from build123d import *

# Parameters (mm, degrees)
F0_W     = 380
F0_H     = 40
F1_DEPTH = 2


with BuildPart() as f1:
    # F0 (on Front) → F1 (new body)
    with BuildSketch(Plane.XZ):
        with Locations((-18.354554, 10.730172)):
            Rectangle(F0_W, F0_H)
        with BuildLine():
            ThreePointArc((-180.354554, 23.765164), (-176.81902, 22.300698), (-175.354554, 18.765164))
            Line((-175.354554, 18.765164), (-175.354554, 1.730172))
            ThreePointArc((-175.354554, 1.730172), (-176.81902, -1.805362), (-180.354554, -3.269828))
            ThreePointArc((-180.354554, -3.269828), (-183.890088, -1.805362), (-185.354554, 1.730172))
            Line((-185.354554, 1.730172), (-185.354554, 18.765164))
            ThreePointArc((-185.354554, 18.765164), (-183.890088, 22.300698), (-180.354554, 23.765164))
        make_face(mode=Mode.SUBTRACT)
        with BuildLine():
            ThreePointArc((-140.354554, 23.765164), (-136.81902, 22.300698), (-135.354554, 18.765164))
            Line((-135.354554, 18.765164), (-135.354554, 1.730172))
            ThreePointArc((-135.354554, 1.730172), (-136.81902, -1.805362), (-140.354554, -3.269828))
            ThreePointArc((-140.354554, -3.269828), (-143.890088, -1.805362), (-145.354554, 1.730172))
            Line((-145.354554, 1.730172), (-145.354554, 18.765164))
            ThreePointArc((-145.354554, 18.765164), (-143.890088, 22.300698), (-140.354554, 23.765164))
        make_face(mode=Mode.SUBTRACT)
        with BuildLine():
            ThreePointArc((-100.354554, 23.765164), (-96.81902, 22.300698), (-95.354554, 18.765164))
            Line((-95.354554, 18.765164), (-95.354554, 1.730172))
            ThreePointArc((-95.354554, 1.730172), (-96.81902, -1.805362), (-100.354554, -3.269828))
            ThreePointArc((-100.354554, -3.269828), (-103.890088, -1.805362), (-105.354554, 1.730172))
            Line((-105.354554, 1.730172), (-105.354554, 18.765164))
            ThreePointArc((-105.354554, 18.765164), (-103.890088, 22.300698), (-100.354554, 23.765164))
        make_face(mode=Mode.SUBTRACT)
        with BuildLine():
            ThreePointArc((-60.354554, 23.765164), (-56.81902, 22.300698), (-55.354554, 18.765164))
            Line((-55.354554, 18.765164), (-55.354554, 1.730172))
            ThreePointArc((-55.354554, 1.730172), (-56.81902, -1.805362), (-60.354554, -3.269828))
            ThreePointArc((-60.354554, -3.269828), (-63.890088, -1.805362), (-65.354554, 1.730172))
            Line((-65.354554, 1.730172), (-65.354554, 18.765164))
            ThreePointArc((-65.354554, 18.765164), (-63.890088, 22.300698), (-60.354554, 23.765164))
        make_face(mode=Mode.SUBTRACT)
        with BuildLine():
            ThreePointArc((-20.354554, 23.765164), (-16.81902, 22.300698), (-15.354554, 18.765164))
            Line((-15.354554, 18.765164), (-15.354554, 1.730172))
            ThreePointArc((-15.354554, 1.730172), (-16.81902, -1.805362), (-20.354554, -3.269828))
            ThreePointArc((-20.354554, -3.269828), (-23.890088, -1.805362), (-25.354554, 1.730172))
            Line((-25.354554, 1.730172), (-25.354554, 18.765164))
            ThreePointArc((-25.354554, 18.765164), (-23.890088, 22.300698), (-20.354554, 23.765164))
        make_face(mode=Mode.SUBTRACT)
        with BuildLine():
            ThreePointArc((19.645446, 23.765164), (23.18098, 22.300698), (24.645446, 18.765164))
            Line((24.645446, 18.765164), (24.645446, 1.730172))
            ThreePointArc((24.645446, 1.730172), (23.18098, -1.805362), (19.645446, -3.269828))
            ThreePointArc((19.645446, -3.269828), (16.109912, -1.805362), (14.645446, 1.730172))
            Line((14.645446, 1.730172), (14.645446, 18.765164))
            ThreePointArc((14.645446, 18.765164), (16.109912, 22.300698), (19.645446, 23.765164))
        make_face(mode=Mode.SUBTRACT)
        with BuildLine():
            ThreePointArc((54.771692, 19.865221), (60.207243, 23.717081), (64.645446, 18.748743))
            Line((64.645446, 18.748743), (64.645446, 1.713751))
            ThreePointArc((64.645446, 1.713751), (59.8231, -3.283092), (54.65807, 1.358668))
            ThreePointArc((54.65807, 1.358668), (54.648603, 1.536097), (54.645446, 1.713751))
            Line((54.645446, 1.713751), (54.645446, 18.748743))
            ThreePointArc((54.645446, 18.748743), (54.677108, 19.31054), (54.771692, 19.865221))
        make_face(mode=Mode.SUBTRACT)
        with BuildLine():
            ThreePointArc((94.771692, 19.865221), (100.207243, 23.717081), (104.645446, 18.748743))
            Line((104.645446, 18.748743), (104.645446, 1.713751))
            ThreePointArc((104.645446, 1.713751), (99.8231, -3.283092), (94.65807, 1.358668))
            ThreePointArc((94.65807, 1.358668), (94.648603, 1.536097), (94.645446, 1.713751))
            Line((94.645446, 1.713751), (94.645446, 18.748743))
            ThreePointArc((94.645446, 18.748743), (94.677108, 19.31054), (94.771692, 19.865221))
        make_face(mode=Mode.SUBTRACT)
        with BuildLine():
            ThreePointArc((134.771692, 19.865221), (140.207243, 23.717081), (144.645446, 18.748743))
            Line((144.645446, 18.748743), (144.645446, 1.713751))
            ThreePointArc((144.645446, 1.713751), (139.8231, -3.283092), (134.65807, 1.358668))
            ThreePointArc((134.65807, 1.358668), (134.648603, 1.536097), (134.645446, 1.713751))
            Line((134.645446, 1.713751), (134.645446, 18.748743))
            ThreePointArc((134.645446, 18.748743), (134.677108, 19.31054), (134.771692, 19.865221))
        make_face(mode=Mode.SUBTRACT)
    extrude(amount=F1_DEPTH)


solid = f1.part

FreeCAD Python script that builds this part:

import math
import FreeCAD as App
import Part
import Sketcher

V = App.Vector


def add_polygon(sketch, points):
    """Adds a closed chain of lines whose ends are joined by coincident constraints."""
    first, n = sketch.GeometryCount, len(points)
    for a, b in zip(points, points[1:] + points[:1]):
        sketch.addGeometry(Part.LineSegment(App.Vector(*a, 0), App.Vector(*b, 0)), False)
    for i in range(n):
        sketch.addConstraint(Sketcher.Constraint("Coincident", first + i, 2, first + (i + 1) % n, 1))

doc = App.newDocument("Part")
body = doc.addObject("PartDesign::Body", "Body")

# Sketch on XZ plane
sketch1 = body.newObject("Sketcher::SketchObject", "Sketch")
sketch1.AttachmentSupport = (doc.getObject("XZ_Plane"), [""])
sketch1.MapMode = "FlatFace"
add_polygon(sketch1, [(-208.354554, 30.730172), (-208.354554, -9.269828), (171.645446, -9.269828), (171.645446, 30.730172)])  # lines 0-3
sketch1.addGeometry(Part.ArcOfCircle(Part.Circle(V(59.645481, 18.74874, 0), V(0, 0, 1), 5.000035), math.radians(167.097378), math.radians(179.99996)), False)  # 4
sketch1.addGeometry(Part.ArcOfCircle(Part.Circle(V(59.645446, 18.748743, 0), V(0, 0, 1), 5), math.radians(0.000003), math.radians(167.097324)), False)  # 5
sketch1.addGeometry(Part.LineSegment(V(64.645446, 18.748743, 0), V(64.645446, 1.713751, 0)), False)  # 6
sketch1.addGeometry(Part.ArcOfCircle(Part.Circle(V(59.645446, 1.713751, 0), V(0, 0, 1), 5), math.radians(-175.92762), math.radians(-0.000001)), False)  # 7
sketch1.addGeometry(Part.ArcOfCircle(Part.Circle(V(59.645563, 1.713751, 0), V(0, 0, 1), 5.000117), math.radians(179.999995), math.radians(184.072278)), False)  # 8
sketch1.addGeometry(Part.LineSegment(V(54.645446, 1.713751, 0), V(54.645446, 18.748743, 0)), False)  # 9
sketch1.addGeometry(Part.ArcOfCircle(Part.Circle(V(99.645481, 18.74874, 0), V(0, 0, 1), 5.000035), math.radians(167.097378), math.radians(179.99996)), False)  # 10
sketch1.addGeometry(Part.ArcOfCircle(Part.Circle(V(99.645446, 18.748743, 0), V(0, 0, 1), 5), math.radians(0.000003), math.radians(167.097324)), False)  # 11
sketch1.addGeometry(Part.LineSegment(V(104.645446, 18.748743, 0), V(104.645446, 1.713751, 0)), False)  # 12
sketch1.addGeometry(Part.ArcOfCircle(Part.Circle(V(99.645446, 1.713751, 0), V(0, 0, 1), 5), math.radians(-175.92762), math.radians(-0.000001)), False)  # 13
sketch1.addGeometry(Part.ArcOfCircle(Part.Circle(V(99.645563, 1.713751, 0), V(0, 0, 1), 5.000117), math.radians(179.999995), math.radians(184.072278)), False)  # 14
sketch1.addGeometry(Part.LineSegment(V(94.645446, 1.713751, 0), V(94.645446, 18.748743, 0)), False)  # 15
sketch1.addGeometry(Part.ArcOfCircle(Part.Circle(V(139.645481, 18.74874, 0), V(0, 0, 1), 5.000035), math.radians(167.097378), math.radians(179.99996)), False)  # 16
sketch1.addGeometry(Part.ArcOfCircle(Part.Circle(V(139.645446, 18.748743, 0), V(0, 0, 1), 5), math.radians(0.000003), math.radians(167.097324)), False)  # 17
sketch1.addGeometry(Part.LineSegment(V(144.645446, 18.748743, 0), V(144.645446, 1.713751, 0)), False)  # 18
sketch1.addGeometry(Part.ArcOfCircle(Part.Circle(V(139.645446, 1.713751, 0), V(0, 0, 1), 5), math.radians(-175.92762), math.radians(-0.000001)), False)  # 19
sketch1.addGeometry(Part.ArcOfCircle(Part.Circle(V(139.645563, 1.713751, 0), V(0, 0, 1), 5.000117), math.radians(179.999995), math.radians(184.072278)), False)  # 20
sketch1.addGeometry(Part.LineSegment(V(134.645446, 1.713751, 0), V(134.645446, 18.748743, 0)), False)  # 21
sketch1.addGeometry(Part.ArcOfCircle(Part.Circle(V(-180.354554, 18.765164, 0), V(0, 0, 1), 5), math.radians(89.999996), math.radians(180.000004)), False)  # 22
sketch1.addGeometry(Part.ArcOfCircle(Part.Circle(V(-180.354554, 18.765164, 0), V(0, 0, 1), 5), math.radians(-0.000004), math.radians(90.000004)), False)  # 23
sketch1.addGeometry(Part.LineSegment(V(-175.354554, 18.765164, 0), V(-175.354554, 1.730172, 0)), False)  # 24
sketch1.addGeometry(Part.ArcOfCircle(Part.Circle(V(-180.354554, 1.730172, 0), V(0, 0, 1), 5), math.radians(-90.000004), math.radians(0.000004)), False)  # 25
sketch1.addGeometry(Part.ArcOfCircle(Part.Circle(V(-180.354554, 1.730172, 0), V(0, 0, 1), 5), math.radians(179.999996), math.radians(270.000004)), False)  # 26
sketch1.addGeometry(Part.LineSegment(V(-185.354554, 1.730172, 0), V(-185.354554, 18.765164, 0)), False)  # 27
sketch1.addGeometry(Part.ArcOfCircle(Part.Circle(V(-140.354554, 18.765164, 0), V(0, 0, 1), 5), math.radians(89.999996), math.radians(180.000004)), False)  # 28
sketch1.addGeometry(Part.ArcOfCircle(Part.Circle(V(-140.354554, 18.765164, 0), V(0, 0, 1), 5), math.radians(-0.000004), math.radians(90.000004)), False)  # 29
sketch1.addGeometry(Part.LineSegment(V(-135.354554, 18.765164, 0), V(-135.354554, 1.730172, 0)), False)  # 30
sketch1.addGeometry(Part.ArcOfCircle(Part.Circle(V(-140.354554, 1.730172, 0), V(0, 0, 1), 5), math.radians(-90.000004), math.radians(0.000004)), False)  # 31
sketch1.addGeometry(Part.ArcOfCircle(Part.Circle(V(-140.354554, 1.730172, 0), V(0, 0, 1), 5), math.radians(179.999996), math.radians(270.000004)), False)  # 32
sketch1.addGeometry(Part.LineSegment(V(-145.354554, 1.730172, 0), V(-145.354554, 18.765164, 0)), False)  # 33
sketch1.addGeometry(Part.ArcOfCircle(Part.Circle(V(-100.354554, 18.765164, 0), V(0, 0, 1), 5), math.radians(89.999996), math.radians(180.000004)), False)  # 34
sketch1.addGeometry(Part.ArcOfCircle(Part.Circle(V(-100.354554, 18.765164, 0), V(0, 0, 1), 5), math.radians(-0.000004), math.radians(90.000004)), False)  # 35
sketch1.addGeometry(Part.LineSegment(V(-95.354554, 18.765164, 0), V(-95.354554, 1.730172, 0)), False)  # 36
sketch1.addGeometry(Part.ArcOfCircle(Part.Circle(V(-100.354554, 1.730172, 0), V(0, 0, 1), 5), math.radians(-90.000004), math.radians(0.000004)), False)  # 37
sketch1.addGeometry(Part.ArcOfCircle(Part.Circle(V(-100.354554, 1.730172, 0), V(0, 0, 1), 5), math.radians(179.999996), math.radians(270.000004)), False)  # 38
sketch1.addGeometry(Part.LineSegment(V(-105.354554, 1.730172, 0), V(-105.354554, 18.765164, 0)), False)  # 39
sketch1.addGeometry(Part.ArcOfCircle(Part.Circle(V(-60.354554, 18.765164, 0), V(0, 0, 1), 5), math.radians(89.999996), math.radians(180.000004)), False)  # 40
sketch1.addGeometry(Part.ArcOfCircle(Part.Circle(V(-60.354554, 18.765164, 0), V(0, 0, 1), 5), math.radians(-0.000004), math.radians(90.000004)), False)  # 41
sketch1.addGeometry(Part.LineSegment(V(-55.354554, 18.765164, 0), V(-55.354554, 1.730172, 0)), False)  # 42
sketch1.addGeometry(Part.ArcOfCircle(Part.Circle(V(-60.354554, 1.730172, 0), V(0, 0, 1), 5), math.radians(-90.000004), math.radians(0.000004)), False)  # 43
sketch1.addGeometry(Part.ArcOfCircle(Part.Circle(V(-60.354554, 1.730172, 0), V(0, 0, 1), 5), math.radians(179.999996), math.radians(270.000004)), False)  # 44
sketch1.addGeometry(Part.LineSegment(V(-65.354554, 1.730172, 0), V(-65.354554, 18.765164, 0)), False)  # 45
sketch1.addGeometry(Part.ArcOfCircle(Part.Circle(V(-20.354554, 18.765164, 0), V(0, 0, 1), 5), math.radians(89.999996), math.radians(180.000004)), False)  # 46
sketch1.addGeometry(Part.ArcOfCircle(Part.Circle(V(-20.354554, 18.765164, 0), V(0, 0, 1), 5), math.radians(-0.000004), math.radians(90.000004)), False)  # 47
sketch1.addGeometry(Part.LineSegment(V(-15.354554, 18.765164, 0), V(-15.354554, 1.730172, 0)), False)  # 48
sketch1.addGeometry(Part.ArcOfCircle(Part.Circle(V(-20.354554, 1.730172, 0), V(0, 0, 1), 5), math.radians(-90.000004), math.radians(0.000004)), False)  # 49
sketch1.addGeometry(Part.ArcOfCircle(Part.Circle(V(-20.354554, 1.730172, 0), V(0, 0, 1), 5), math.radians(179.999996), math.radians(270.000004)), False)  # 50
sketch1.addGeometry(Part.LineSegment(V(-25.354554, 1.730172, 0), V(-25.354554, 18.765164, 0)), False)  # 51
sketch1.addGeometry(Part.ArcOfCircle(Part.Circle(V(19.645446, 18.765164, 0), V(0, 0, 1), 5), math.radians(89.999996), math.radians(180.000004)), False)  # 52
sketch1.addGeometry(Part.ArcOfCircle(Part.Circle(V(19.645446, 18.765164, 0), V(0, 0, 1), 5), math.radians(-0.000004), math.radians(90.000004)), False)  # 53
sketch1.addGeometry(Part.LineSegment(V(24.645446, 18.765164, 0), V(24.645446, 1.730172, 0)), False)  # 54
sketch1.addGeometry(Part.ArcOfCircle(Part.Circle(V(19.645446, 1.730172, 0), V(0, 0, 1), 5), math.radians(-90.000004), math.radians(0.000004)), False)  # 55
sketch1.addGeometry(Part.ArcOfCircle(Part.Circle(V(19.645446, 1.730172, 0), V(0, 0, 1), 5), math.radians(179.999996), math.radians(270.000004)), False)  # 56
sketch1.addGeometry(Part.LineSegment(V(14.645446, 1.730172, 0), V(14.645446, 18.765164, 0)), False)  # 57
sketch1.addConstraint([
    Sketcher.Constraint("Coincident", 4, 1, 5, 2),
    Sketcher.Constraint("Coincident", 5, 1, 6, 1),
    Sketcher.Constraint("Coincident", 6, 2, 7, 2),
    Sketcher.Constraint("Coincident", 7, 1, 8, 2),
    Sketcher.Constraint("Coincident", 8, 1, 9, 1),
    Sketcher.Constraint("Coincident", 9, 2, 4, 2),
    Sketcher.Constraint("Coincident", 10, 1, 11, 2),
    Sketcher.Constraint("Coincident", 11, 1, 12, 1),
    Sketcher.Constraint("Coincident", 12, 2, 13, 2),
    Sketcher.Constraint("Coincident", 13, 1, 14, 2),
    Sketcher.Constraint("Coincident", 14, 1, 15, 1),
    Sketcher.Constraint("Coincident", 15, 2, 10, 2),
    Sketcher.Constraint("Coincident", 16, 1, 17, 2),
    Sketcher.Constraint("Coincident", 17, 1, 18, 1),
    Sketcher.Constraint("Coincident", 18, 2, 19, 2),
    Sketcher.Constraint("Coincident", 19, 1, 20, 2),
    Sketcher.Constraint("Coincident", 20, 1, 21, 1),
    Sketcher.Constraint("Coincident", 21, 2, 16, 2),
    Sketcher.Constraint("Coincident", 22, 1, 23, 2),
    Sketcher.Constraint("Coincident", 23, 1, 24, 1),
    Sketcher.Constraint("Coincident", 24, 2, 25, 2),
    Sketcher.Constraint("Coincident", 25, 1, 26, 2),
    Sketcher.Constraint("Coincident", 26, 1, 27, 1),
    Sketcher.Constraint("Coincident", 27, 2, 22, 2),
    Sketcher.Constraint("Coincident", 28, 1, 29, 2),
    Sketcher.Constraint("Coincident", 29, 1, 30, 1),
    Sketcher.Constraint("Coincident", 30, 2, 31, 2),
    Sketcher.Constraint("Coincident", 31, 1, 32, 2),
    Sketcher.Constraint("Coincident", 32, 1, 33, 1),
    Sketcher.Constraint("Coincident", 33, 2, 28, 2),
    Sketcher.Constraint("Coincident", 34, 1, 35, 2),
    Sketcher.Constraint("Coincident", 35, 1, 36, 1),
    Sketcher.Constraint("Coincident", 36, 2, 37, 2),
    Sketcher.Constraint("Coincident", 37, 1, 38, 2),
    Sketcher.Constraint("Coincident", 38, 1, 39, 1),
    Sketcher.Constraint("Coincident", 39, 2, 34, 2),
    Sketcher.Constraint("Coincident", 40, 1, 41, 2),
    Sketcher.Constraint("Coincident", 41, 1, 42, 1),
    Sketcher.Constraint("Coincident", 42, 2, 43, 2),
    Sketcher.Constraint("Coincident", 43, 1, 44, 2),
    Sketcher.Constraint("Coincident", 44, 1, 45, 1),
    Sketcher.Constraint("Coincident", 45, 2, 40, 2),
    Sketcher.Constraint("Coincident", 46, 1, 47, 2),
    Sketcher.Constraint("Coincident", 47, 1, 48, 1),
    Sketcher.Constraint("Coincident", 48, 2, 49, 2),
    Sketcher.Constraint("Coincident", 49, 1, 50, 2),
    Sketcher.Constraint("Coincident", 50, 1, 51, 1),
    Sketcher.Constraint("Coincident", 51, 2, 46, 2),
    Sketcher.Constraint("Coincident", 52, 1, 53, 2),
    Sketcher.Constraint("Coincident", 53, 1, 54, 1),
    Sketcher.Constraint("Coincident", 54, 2, 55, 2),
    Sketcher.Constraint("Coincident", 55, 1, 56, 2),
    Sketcher.Constraint("Coincident", 56, 1, 57, 1),
    Sketcher.Constraint("Coincident", 57, 2, 52, 2),
    Sketcher.Constraint("Vertical", 0),
    Sketcher.Constraint("Horizontal", 1),
    Sketcher.Constraint("Vertical", 2),
    Sketcher.Constraint("Horizontal", 3),
    Sketcher.Constraint("Vertical", 6),
    Sketcher.Constraint("Vertical", 9),
    Sketcher.Constraint("Vertical", 12),
    Sketcher.Constraint("Vertical", 15),
    Sketcher.Constraint("Vertical", 18),
    Sketcher.Constraint("Vertical", 21),
    Sketcher.Constraint("Vertical", 24),
    Sketcher.Constraint("Vertical", 27),
    Sketcher.Constraint("Vertical", 30),
    Sketcher.Constraint("Vertical", 33),
    Sketcher.Constraint("Vertical", 36),
    Sketcher.Constraint("Vertical", 39),
    Sketcher.Constraint("Vertical", 42),
    Sketcher.Constraint("Vertical", 45),
    Sketcher.Constraint("Vertical", 48),
    Sketcher.Constraint("Vertical", 51),
    Sketcher.Constraint("Vertical", 54),
    Sketcher.Constraint("Vertical", 57),
    Sketcher.Constraint("Coincident", 23, 3, 22, 3),
    Sketcher.Constraint("Coincident", 26, 3, 25, 3),
    Sketcher.Constraint("Coincident", 29, 3, 28, 3),
    Sketcher.Constraint("Coincident", 32, 3, 31, 3),
    Sketcher.Constraint("Coincident", 35, 3, 34, 3),
    Sketcher.Constraint("Coincident", 38, 3, 37, 3),
    Sketcher.Constraint("Coincident", 41, 3, 40, 3),
    Sketcher.Constraint("Coincident", 44, 3, 43, 3),
    Sketcher.Constraint("Coincident", 47, 3, 46, 3),
    Sketcher.Constraint("Coincident", 50, 3, 49, 3),
    Sketcher.Constraint("Coincident", 53, 3, 52, 3),
    Sketcher.Constraint("Coincident", 56, 3, 55, 3),
    Sketcher.Constraint("Radius", 5, 5.0),
    Sketcher.Constraint("Radius", 7, 5.0),
    Sketcher.Constraint("Radius", 11, 5.0),
    Sketcher.Constraint("Radius", 13, 5.0),
    Sketcher.Constraint("Radius", 17, 5.0),
    Sketcher.Constraint("Radius", 19, 5.0),
    Sketcher.Constraint("Radius", 22, 5.0),
    Sketcher.Constraint("Radius", 28, 5.0),
    Sketcher.Constraint("Radius", 34, 5.0),
    Sketcher.Constraint("Radius", 40, 5.0),
    Sketcher.Constraint("Radius", 46, 5.0),
    Sketcher.Constraint("Radius", 52, 5.0),
    Sketcher.Constraint("DistanceX", 1, 1, 1, 2, 380.0),
    Sketcher.Constraint("DistanceY", 0, 2, 0, 1, 40.0),
    Sketcher.Constraint("Radius", 4, 5.000035),
    Sketcher.Constraint("Radius", 8, 5.000117),
    Sketcher.Constraint("Radius", 10, 5.000035),
    Sketcher.Constraint("Radius", 14, 5.000117),
    Sketcher.Constraint("Radius", 16, 5.000035),
    Sketcher.Constraint("Radius", 20, 5.000117),
    Sketcher.Constraint("DistanceY", 24, 2, 24, 1, 17.034992),
    Sketcher.Constraint("DistanceY", 27, 1, 27, 2, 17.034992),
    Sketcher.Constraint("DistanceY", 30, 2, 30, 1, 17.034992),
    Sketcher.Constraint("DistanceY", 33, 1, 33, 2, 17.034992),
    Sketcher.Constraint("DistanceY", 36, 2, 36, 1, 17.034992),
    Sketcher.Constraint("DistanceY", 39, 1, 39, 2, 17.034992),
    Sketcher.Constraint("DistanceY", 42, 2, 42, 1, 17.034992),
    Sketcher.Constraint("DistanceY", 45, 1, 45, 2, 17.034992),
    Sketcher.Constraint("DistanceY", 48, 2, 48, 1, 17.034992),
    Sketcher.Constraint("DistanceY", 51, 1, 51, 2, 17.034992),
    Sketcher.Constraint("DistanceY", 54, 2, 54, 1, 17.034992),
    Sketcher.Constraint("DistanceY", 57, 1, 57, 2, 17.034992),
    Sketcher.Constraint("DistanceY", 6, 2, 6, 1, 17.034992),
    Sketcher.Constraint("DistanceY", 9, 1, 9, 2, 17.034992),
    Sketcher.Constraint("DistanceY", 12, 2, 12, 1, 17.034992),
    Sketcher.Constraint("DistanceY", 15, 1, 15, 2, 17.034992),
    Sketcher.Constraint("DistanceY", 18, 2, 18, 1, 17.034992),
    Sketcher.Constraint("DistanceY", 21, 1, 21, 2, 17.034992),
    Sketcher.Constraint("DistanceX", -1, 1, 4, 3, 59.645481),
    Sketcher.Constraint("DistanceY", -1, 1, 4, 3, 18.74874),
    Sketcher.Constraint("DistanceY", -1, 1, 7, 3, 1.713751),
    Sketcher.Constraint("DistanceY", -1, 1, 8, 3, 1.713751),
    Sketcher.Constraint("DistanceX", -1, 1, 10, 3, 99.645481),
    Sketcher.Constraint("DistanceY", -1, 1, 10, 3, 18.74874),
    Sketcher.Constraint("DistanceY", -1, 1, 13, 3, 1.713751),
    Sketcher.Constraint("DistanceY", -1, 1, 14, 3, 1.713751),
    Sketcher.Constraint("DistanceX", -1, 1, 16, 3, 139.645481),
    Sketcher.Constraint("DistanceY", -1, 1, 16, 3, 18.74874),
    Sketcher.Constraint("DistanceY", -1, 1, 19, 3, 1.713751),
    Sketcher.Constraint("DistanceY", -1, 1, 20, 3, 1.713751),
    Sketcher.Constraint("DistanceY", -1, 1, 25, 3, 1.730172),
    Sketcher.Constraint("DistanceY", -1, 1, 31, 3, 1.730172),
    Sketcher.Constraint("DistanceY", -1, 1, 37, 3, 1.730172),
    Sketcher.Constraint("DistanceY", -1, 1, 43, 3, 1.730172),
    Sketcher.Constraint("DistanceY", -1, 1, 49, 3, 1.730172),
    Sketcher.Constraint("DistanceY", -1, 1, 55, 3, 1.730172),
    Sketcher.Constraint("DistanceY", -1, 1, 2, 2, 30.730172),
    Sketcher.Constraint("DistanceY", -1, 1, 4, 1, 19.865221),
    Sketcher.Constraint("DistanceY", -1, 1, 6, 2, 1.713751),
    Sketcher.Constraint("DistanceX", -1, 1, 7, 1, 54.65807),
    Sketcher.Constraint("DistanceY", -1, 1, 8, 1, 1.713751),
    Sketcher.Constraint("DistanceY", -1, 1, 10, 1, 19.865221),
    Sketcher.Constraint("DistanceY", -1, 1, 12, 2, 1.713751),
    Sketcher.Constraint("DistanceX", -1, 1, 13, 1, 94.65807),
    Sketcher.Constraint("DistanceY", -1, 1, 14, 1, 1.713751),
    Sketcher.Constraint("DistanceY", -1, 1, 16, 1, 19.865221),
    Sketcher.Constraint("DistanceY", -1, 1, 18, 2, 1.713751),
    Sketcher.Constraint("DistanceX", -1, 1, 19, 1, 134.65807),
    Sketcher.Constraint("DistanceY", -1, 1, 20, 1, 1.713751),
    Sketcher.Constraint("DistanceY", -1, 1, 26, 1, 1.730172),
    Sketcher.Constraint("DistanceY", -1, 1, 32, 1, 1.730172),
    Sketcher.Constraint("DistanceY", -1, 1, 38, 1, 1.730172),
    Sketcher.Constraint("DistanceY", -1, 1, 44, 1, 1.730172),
    Sketcher.Constraint("DistanceY", -1, 1, 50, 1, 1.730172),
    Sketcher.Constraint("DistanceY", -1, 1, 56, 1, 1.730172),
    Sketcher.Constraint("DistanceX", 22, 3, -1, 1, 180.354554),
    Sketcher.Constraint("DistanceY", -1, 1, 22, 3, 18.765164),
    Sketcher.Constraint("DistanceX", 28, 3, -1, 1, 140.354554),
    Sketcher.Constraint("DistanceY", -1, 1, 28, 3, 18.765164),
    Sketcher.Constraint("DistanceX", 34, 3, -1, 1, 100.354554),
    Sketcher.Constraint("DistanceY", -1, 1, 34, 3, 18.765164),
    Sketcher.Constraint("DistanceX", 40, 3, -1, 1, 60.354554),
    Sketcher.Constraint("DistanceY", -1, 1, 40, 3, 18.765164),
    Sketcher.Constraint("DistanceX", 46, 3, -1, 1, 20.354554),
    Sketcher.Constraint("DistanceY", -1, 1, 46, 3, 18.765164),
    Sketcher.Constraint("DistanceX", -1, 1, 52, 3, 19.645446),
    Sketcher.Constraint("DistanceY", -1, 1, 52, 3, 18.765164),
    Sketcher.Constraint("DistanceX", 0, 2, -1, 1, 208.354554),
    Sketcher.Constraint("DistanceX", 22, 1, -1, 1, 180.354554),
    Sketcher.Constraint("DistanceY", -1, 1, 23, 1, 18.765164),
    Sketcher.Constraint("DistanceX", 25, 1, -1, 1, 180.354554),
    Sketcher.Constraint("DistanceX", 28, 1, -1, 1, 140.354554),
    Sketcher.Constraint("DistanceY", -1, 1, 29, 1, 18.765164),
    Sketcher.Constraint("DistanceX", 31, 1, -1, 1, 140.354554),
    Sketcher.Constraint("DistanceX", 34, 1, -1, 1, 100.354554),
    Sketcher.Constraint("DistanceY", -1, 1, 35, 1, 18.765164),
    Sketcher.Constraint("DistanceX", 37, 1, -1, 1, 100.354554),
    Sketcher.Constraint("DistanceX", 40, 1, -1, 1, 60.354554),
    Sketcher.Constraint("DistanceY", -1, 1, 41, 1, 18.765164),
    Sketcher.Constraint("DistanceX", 43, 1, -1, 1, 60.354554),
    Sketcher.Constraint("DistanceX", 46, 1, -1, 1, 20.354554),
    Sketcher.Constraint("DistanceY", -1, 1, 47, 1, 18.765164),
    Sketcher.Constraint("DistanceX", 49, 1, -1, 1, 20.354554),
    Sketcher.Constraint("DistanceX", -1, 1, 52, 1, 19.645446),
    Sketcher.Constraint("DistanceY", -1, 1, 53, 1, 18.765164),
    Sketcher.Constraint("DistanceX", -1, 1, 55, 1, 19.645446),
])
pad1 = body.newObject("PartDesign::Pad", "Pad")
pad1.Profile = sketch1
pad1.Length = 2

doc.recompute()
